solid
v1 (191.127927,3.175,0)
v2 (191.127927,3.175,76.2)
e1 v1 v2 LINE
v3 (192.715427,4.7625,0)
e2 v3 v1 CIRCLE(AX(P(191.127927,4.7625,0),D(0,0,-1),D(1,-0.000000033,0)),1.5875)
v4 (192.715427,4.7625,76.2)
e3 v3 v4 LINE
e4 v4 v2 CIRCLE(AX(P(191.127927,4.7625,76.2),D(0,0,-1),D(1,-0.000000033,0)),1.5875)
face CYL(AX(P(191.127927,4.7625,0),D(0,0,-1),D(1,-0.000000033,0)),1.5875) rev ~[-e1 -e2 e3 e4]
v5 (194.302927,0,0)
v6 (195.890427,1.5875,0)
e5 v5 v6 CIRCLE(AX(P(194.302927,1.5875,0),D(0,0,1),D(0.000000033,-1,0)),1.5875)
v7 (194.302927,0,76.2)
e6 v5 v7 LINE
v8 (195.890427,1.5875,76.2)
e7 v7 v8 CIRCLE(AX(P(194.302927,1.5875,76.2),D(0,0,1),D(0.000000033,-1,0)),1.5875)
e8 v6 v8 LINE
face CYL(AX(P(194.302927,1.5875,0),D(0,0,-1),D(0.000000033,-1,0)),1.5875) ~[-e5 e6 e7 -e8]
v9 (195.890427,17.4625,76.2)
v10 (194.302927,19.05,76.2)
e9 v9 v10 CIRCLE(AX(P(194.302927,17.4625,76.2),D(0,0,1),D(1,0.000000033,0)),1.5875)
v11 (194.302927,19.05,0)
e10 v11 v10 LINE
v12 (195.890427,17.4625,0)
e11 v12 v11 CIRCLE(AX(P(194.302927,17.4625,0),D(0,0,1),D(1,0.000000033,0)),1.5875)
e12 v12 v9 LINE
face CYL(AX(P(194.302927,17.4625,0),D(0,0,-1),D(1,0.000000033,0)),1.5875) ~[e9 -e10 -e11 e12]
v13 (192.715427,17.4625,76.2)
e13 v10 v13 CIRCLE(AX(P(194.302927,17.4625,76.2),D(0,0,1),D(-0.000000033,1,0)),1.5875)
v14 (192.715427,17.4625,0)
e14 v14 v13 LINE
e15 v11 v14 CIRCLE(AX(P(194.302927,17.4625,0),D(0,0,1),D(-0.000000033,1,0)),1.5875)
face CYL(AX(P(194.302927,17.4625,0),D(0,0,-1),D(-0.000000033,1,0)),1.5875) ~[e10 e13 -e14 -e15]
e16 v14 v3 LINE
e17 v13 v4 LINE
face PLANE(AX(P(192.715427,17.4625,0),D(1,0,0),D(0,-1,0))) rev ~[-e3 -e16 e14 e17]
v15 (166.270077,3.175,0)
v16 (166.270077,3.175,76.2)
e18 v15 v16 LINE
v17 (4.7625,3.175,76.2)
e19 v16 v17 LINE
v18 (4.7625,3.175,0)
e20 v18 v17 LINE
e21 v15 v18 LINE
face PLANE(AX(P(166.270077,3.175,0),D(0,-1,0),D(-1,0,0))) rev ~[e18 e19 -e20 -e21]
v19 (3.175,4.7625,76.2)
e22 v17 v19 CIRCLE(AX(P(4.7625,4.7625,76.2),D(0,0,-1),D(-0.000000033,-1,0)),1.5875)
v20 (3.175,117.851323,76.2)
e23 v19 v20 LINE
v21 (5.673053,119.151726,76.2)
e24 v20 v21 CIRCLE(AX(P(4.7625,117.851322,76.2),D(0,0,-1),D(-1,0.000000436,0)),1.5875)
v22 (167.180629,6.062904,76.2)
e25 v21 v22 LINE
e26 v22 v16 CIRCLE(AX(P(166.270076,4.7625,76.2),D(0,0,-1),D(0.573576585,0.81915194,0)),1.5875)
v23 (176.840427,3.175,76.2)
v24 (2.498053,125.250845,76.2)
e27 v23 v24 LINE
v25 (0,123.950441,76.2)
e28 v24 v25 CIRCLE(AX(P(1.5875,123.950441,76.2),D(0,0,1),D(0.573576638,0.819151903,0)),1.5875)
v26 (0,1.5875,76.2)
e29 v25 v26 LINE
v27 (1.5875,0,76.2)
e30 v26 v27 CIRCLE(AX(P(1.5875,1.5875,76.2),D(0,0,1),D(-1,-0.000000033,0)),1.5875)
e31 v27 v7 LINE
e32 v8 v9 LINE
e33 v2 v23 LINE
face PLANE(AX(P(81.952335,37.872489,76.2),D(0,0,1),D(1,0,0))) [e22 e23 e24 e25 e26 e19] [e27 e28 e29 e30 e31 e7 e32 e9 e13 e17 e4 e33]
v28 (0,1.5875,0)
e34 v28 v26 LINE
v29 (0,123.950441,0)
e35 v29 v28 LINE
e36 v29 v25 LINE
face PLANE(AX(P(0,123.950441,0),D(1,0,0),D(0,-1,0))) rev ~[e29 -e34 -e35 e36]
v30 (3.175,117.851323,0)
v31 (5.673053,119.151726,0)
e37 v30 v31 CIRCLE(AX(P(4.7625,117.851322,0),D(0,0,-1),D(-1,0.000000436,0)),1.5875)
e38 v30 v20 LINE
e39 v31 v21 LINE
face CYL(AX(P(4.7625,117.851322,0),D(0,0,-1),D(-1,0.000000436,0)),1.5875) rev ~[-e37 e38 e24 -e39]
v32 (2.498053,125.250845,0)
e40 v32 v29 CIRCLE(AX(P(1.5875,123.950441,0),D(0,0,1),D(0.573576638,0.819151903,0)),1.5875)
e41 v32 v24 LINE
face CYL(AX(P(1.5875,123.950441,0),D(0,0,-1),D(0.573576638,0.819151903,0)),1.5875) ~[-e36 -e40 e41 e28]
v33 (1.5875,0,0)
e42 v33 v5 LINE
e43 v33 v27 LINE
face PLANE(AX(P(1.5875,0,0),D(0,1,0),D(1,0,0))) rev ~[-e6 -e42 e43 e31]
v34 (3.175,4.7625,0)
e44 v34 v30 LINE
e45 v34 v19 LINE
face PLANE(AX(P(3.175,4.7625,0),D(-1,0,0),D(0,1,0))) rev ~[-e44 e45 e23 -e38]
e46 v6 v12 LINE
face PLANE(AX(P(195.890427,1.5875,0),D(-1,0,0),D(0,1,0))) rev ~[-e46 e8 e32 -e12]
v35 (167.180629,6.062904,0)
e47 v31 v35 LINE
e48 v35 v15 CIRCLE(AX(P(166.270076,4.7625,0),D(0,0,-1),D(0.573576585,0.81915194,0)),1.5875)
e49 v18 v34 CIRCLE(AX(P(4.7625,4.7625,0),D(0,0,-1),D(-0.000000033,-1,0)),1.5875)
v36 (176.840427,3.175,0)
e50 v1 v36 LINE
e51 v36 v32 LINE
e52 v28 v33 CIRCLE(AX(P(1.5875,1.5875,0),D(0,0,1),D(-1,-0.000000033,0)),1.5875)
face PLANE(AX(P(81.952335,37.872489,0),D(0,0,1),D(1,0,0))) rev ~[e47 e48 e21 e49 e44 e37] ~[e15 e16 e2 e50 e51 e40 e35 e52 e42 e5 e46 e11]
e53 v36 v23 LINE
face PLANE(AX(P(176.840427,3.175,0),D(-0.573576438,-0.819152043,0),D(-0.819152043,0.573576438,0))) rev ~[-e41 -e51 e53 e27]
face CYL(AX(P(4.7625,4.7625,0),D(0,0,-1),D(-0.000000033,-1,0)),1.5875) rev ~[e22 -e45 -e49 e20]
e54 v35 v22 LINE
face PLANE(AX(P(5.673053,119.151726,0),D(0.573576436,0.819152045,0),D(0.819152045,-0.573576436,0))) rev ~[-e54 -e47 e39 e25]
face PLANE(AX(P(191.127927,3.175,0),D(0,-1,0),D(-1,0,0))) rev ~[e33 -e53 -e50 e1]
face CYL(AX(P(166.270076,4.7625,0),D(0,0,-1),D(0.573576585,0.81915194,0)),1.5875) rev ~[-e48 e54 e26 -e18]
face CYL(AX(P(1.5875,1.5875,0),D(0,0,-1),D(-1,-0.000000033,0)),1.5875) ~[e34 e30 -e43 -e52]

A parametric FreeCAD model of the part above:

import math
import FreeCAD as App
import Part
import Sketcher
Q = App.Units.Quantity

doc = App.newDocument("Part")
params = doc.addObject("Spreadsheet::Sheet", "Params")
for row, (alias, value) in enumerate([
    ("sketch1_height", "0.5 in"),
    ("sketch1_radius", "0.0625 in"),
    ("sketch1_width", "0.5625 in"),
    ("sketch1_height2", "0.625 in"),
    ("pad1_length", "3 in"),
], start=1):
    params.set(f"A{row}", alias)
    params.set(f"B{row}", "=" + value)
    params.setAlias(f"B{row}", alias)

body = doc.addObject("PartDesign::Body", "Body")

sketch1 = body.newObject("Sketcher::SketchObject", "Sketch")
sketch1.AttachmentSupport = (doc.getObject("XY_Plane"), [""])
sketch1.MapMode = "FlatFace"
sketch1.addGeometry([
    Part.LineSegment(App.Vector(0, 123.950441, 0), App.Vector(0, 1.5875, 0)),
    Part.ArcOfCircle(Part.Circle(App.Vector(1.5875, 1.5875, 0), App.Vector(0, 0, 1), 1.5875), math.radians(-179.999998), math.radians(-90.000002)),
    Part.LineSegment(App.Vector(1.5875, 0, 0), App.Vector(194.302927, 0, 0)),
    Part.ArcOfCircle(Part.Circle(App.Vector(194.302927, 1.5875, 0), App.Vector(0, 0, 1), 1.5875), math.radians(-89.999998), math.radians(-0.000002)),
    Part.LineSegment(App.Vector(195.890427, 1.5875, 0), App.Vector(195.890427, 17.4625, 0)),
    Part.ArcOfCircle(Part.Circle(App.Vector(194.302927, 17.4625, 0), App.Vector(0, 0, 1), 1.5875), math.radians(0.000002), math.radians(89.999998)),
    Part.ArcOfCircle(Part.Circle(App.Vector(194.302927, 17.4625, 0), App.Vector(0, 0, 1), 1.5875), math.radians(90.000002), math.radians(179.999998)),
    Part.LineSegment(App.Vector(192.715427, 17.4625, 0), App.Vector(192.715427, 4.7625, 0)),
    Part.ArcOfCircle(Part.Circle(App.Vector(191.127927, 4.7625, 0), App.Vector(0, 0, 1), 1.5875), math.radians(-89.999998), math.radians(-0.000002)),
    Part.LineSegment(App.Vector(191.127927, 3.175, 0), App.Vector(176.840427, 3.175, 0)),
    Part.LineSegment(App.Vector(176.840427, 3.175, 0), App.Vector(2.498053, 125.250845, 0)),
    Part.ArcOfCircle(Part.Circle(App.Vector(1.5875, 123.950441, 0), App.Vector(0, 0, 1), 1.5875), math.radians(54.999986), math.radians(180.000011)),
    Part.ArcOfCircle(Part.Circle(App.Vector(4.7625, 117.851322, 0), App.Vector(0, 0, 1), 1.5875), math.radians(54.999986), math.radians(179.999975)),
    Part.LineSegment(App.Vector(5.673053, 119.151726, 0), App.Vector(167.180629, 6.062904, 0)),
    Part.ArcOfCircle(Part.Circle(App.Vector(166.270076, 4.7625, 0), App.Vector(0, 0, 1), 1.5875), math.radians(-89.999967), math.radians(54.99999)),
    Part.LineSegment(App.Vector(166.270077, 3.175, 0), App.Vector(4.7625, 3.175, 0)),
    Part.ArcOfCircle(Part.Circle(App.Vector(4.7625, 4.7625, 0), App.Vector(0, 0, 1), 1.5875), math.radians(-179.999998), math.radians(-90.000002)),
    Part.LineSegment(App.Vector(3.175, 4.7625, 0), App.Vector(3.175, 117.851323, 0)),
], False)
sketch1.addConstraint([
    Sketcher.Constraint("Tangent", 0, 2, 1, 1),
    Sketcher.Constraint("Tangent", 1, 2, 2, 1),
    Sketcher.Constraint("Tangent", 2, 2, 3, 1),
    Sketcher.Constraint("Tangent", 3, 2, 4, 1),
    Sketcher.Constraint("Tangent", 4, 2, 5, 1),
    Sketcher.Constraint("Tangent", 5, 2, 6, 1),
    Sketcher.Constraint("Tangent", 6, 2, 7, 1),
    Sketcher.Constraint("Tangent", 7, 2, 8, 2),
    Sketcher.Constraint("Tangent", 8, 1, 9, 1),
    Sketcher.Constraint("Coincident", 9, 2, 10, 1),
    Sketcher.Constraint("Tangent", 10, 2, 11, 1),
    Sketcher.Constraint("Tangent", 11, 2, 0, 1),
    Sketcher.Constraint("Tangent", 12, 1, 13, 1),
    Sketcher.Constraint("Tangent", 13, 2, 14, 2),
    Sketcher.Constraint("Tangent", 14, 1, 15, 1),
    Sketcher.Constraint("Tangent", 15, 2, 16, 2),
    Sketcher.Constraint("Tangent", 16, 1, 17, 1),
    Sketcher.Constraint("Tangent", 17, 2, 12, 2),
    Sketcher.Constraint("Vertical", 0),
    Sketcher.Constraint("Horizontal", 2),
    Sketcher.Constraint("Vertical", 4),
    Sketcher.Constraint("Vertical", 7),
    Sketcher.Constraint("Horizontal", 9),
    Sketcher.Constraint("Horizontal", 15),
    Sketcher.Constraint("Vertical", 17),
    Sketcher.Constraint("Equal", 1, 3),
    Sketcher.Constraint("Equal", 3, 5),
    Sketcher.Constraint("Equal", 5, 6),
    Sketcher.Constraint("Equal", 6, 8),
    Sketcher.Constraint("Equal", 8, 11),
    Sketcher.Constraint("Equal", 11, 12),
    Sketcher.Constraint("Equal", 12, 14),
    Sketcher.Constraint("Equal", 14, 16),
    Sketcher.Constraint("PointOnObject", 0, 2, -2),
    Sketcher.Constraint("PointOnObject", 1, 2, -1),
    Sketcher.Constraint("Parallel", 10, 13),
    Sketcher.Constraint("Horizontal", 8, 3, 14, 3),
    Sketcher.Constraint("Vertical", 2, 2, 5, 2),
    Sketcher.Constraint("DistanceY", 7, 2, 7, 1, Q("0.5 in")),
    Sketcher.Constraint("Angle", 10, Q("145 deg")),
    Sketcher.Constraint("Radius", 1, Q("0.0625 in")),
    Sketcher.Constraint("DistanceX", 9, 2, 9, 1, Q("0.5625 in")),
    Sketcher.Constraint("DistanceY", 4, 1, 4, 2, Q("0.625 in")),
    Sketcher.Constraint("DistanceX", -1, 1, 12, 3, Q("0.1875 in")),
    Sketcher.Constraint("DistanceY", 0, 2, 0, 1, Q("122.362941 mm")),
    Sketcher.Constraint("DistanceX", 15, 2, 15, 1, Q("161.507577 mm")),
])
sketch1.setExpression("Constraints[38]", "Params.sketch1_height")
sketch1.setExpression("Constraints[40]", "Params.sketch1_radius")
sketch1.setExpression("Constraints[41]", "Params.sketch1_width")
sketch1.setExpression("Constraints[42]", "Params.sketch1_height2")
pad1 = body.newObject("PartDesign::Pad", "Pad")
pad1.Profile = sketch1
pad1.setExpression("Length", "Params.pad1_length")

doc.recompute()
